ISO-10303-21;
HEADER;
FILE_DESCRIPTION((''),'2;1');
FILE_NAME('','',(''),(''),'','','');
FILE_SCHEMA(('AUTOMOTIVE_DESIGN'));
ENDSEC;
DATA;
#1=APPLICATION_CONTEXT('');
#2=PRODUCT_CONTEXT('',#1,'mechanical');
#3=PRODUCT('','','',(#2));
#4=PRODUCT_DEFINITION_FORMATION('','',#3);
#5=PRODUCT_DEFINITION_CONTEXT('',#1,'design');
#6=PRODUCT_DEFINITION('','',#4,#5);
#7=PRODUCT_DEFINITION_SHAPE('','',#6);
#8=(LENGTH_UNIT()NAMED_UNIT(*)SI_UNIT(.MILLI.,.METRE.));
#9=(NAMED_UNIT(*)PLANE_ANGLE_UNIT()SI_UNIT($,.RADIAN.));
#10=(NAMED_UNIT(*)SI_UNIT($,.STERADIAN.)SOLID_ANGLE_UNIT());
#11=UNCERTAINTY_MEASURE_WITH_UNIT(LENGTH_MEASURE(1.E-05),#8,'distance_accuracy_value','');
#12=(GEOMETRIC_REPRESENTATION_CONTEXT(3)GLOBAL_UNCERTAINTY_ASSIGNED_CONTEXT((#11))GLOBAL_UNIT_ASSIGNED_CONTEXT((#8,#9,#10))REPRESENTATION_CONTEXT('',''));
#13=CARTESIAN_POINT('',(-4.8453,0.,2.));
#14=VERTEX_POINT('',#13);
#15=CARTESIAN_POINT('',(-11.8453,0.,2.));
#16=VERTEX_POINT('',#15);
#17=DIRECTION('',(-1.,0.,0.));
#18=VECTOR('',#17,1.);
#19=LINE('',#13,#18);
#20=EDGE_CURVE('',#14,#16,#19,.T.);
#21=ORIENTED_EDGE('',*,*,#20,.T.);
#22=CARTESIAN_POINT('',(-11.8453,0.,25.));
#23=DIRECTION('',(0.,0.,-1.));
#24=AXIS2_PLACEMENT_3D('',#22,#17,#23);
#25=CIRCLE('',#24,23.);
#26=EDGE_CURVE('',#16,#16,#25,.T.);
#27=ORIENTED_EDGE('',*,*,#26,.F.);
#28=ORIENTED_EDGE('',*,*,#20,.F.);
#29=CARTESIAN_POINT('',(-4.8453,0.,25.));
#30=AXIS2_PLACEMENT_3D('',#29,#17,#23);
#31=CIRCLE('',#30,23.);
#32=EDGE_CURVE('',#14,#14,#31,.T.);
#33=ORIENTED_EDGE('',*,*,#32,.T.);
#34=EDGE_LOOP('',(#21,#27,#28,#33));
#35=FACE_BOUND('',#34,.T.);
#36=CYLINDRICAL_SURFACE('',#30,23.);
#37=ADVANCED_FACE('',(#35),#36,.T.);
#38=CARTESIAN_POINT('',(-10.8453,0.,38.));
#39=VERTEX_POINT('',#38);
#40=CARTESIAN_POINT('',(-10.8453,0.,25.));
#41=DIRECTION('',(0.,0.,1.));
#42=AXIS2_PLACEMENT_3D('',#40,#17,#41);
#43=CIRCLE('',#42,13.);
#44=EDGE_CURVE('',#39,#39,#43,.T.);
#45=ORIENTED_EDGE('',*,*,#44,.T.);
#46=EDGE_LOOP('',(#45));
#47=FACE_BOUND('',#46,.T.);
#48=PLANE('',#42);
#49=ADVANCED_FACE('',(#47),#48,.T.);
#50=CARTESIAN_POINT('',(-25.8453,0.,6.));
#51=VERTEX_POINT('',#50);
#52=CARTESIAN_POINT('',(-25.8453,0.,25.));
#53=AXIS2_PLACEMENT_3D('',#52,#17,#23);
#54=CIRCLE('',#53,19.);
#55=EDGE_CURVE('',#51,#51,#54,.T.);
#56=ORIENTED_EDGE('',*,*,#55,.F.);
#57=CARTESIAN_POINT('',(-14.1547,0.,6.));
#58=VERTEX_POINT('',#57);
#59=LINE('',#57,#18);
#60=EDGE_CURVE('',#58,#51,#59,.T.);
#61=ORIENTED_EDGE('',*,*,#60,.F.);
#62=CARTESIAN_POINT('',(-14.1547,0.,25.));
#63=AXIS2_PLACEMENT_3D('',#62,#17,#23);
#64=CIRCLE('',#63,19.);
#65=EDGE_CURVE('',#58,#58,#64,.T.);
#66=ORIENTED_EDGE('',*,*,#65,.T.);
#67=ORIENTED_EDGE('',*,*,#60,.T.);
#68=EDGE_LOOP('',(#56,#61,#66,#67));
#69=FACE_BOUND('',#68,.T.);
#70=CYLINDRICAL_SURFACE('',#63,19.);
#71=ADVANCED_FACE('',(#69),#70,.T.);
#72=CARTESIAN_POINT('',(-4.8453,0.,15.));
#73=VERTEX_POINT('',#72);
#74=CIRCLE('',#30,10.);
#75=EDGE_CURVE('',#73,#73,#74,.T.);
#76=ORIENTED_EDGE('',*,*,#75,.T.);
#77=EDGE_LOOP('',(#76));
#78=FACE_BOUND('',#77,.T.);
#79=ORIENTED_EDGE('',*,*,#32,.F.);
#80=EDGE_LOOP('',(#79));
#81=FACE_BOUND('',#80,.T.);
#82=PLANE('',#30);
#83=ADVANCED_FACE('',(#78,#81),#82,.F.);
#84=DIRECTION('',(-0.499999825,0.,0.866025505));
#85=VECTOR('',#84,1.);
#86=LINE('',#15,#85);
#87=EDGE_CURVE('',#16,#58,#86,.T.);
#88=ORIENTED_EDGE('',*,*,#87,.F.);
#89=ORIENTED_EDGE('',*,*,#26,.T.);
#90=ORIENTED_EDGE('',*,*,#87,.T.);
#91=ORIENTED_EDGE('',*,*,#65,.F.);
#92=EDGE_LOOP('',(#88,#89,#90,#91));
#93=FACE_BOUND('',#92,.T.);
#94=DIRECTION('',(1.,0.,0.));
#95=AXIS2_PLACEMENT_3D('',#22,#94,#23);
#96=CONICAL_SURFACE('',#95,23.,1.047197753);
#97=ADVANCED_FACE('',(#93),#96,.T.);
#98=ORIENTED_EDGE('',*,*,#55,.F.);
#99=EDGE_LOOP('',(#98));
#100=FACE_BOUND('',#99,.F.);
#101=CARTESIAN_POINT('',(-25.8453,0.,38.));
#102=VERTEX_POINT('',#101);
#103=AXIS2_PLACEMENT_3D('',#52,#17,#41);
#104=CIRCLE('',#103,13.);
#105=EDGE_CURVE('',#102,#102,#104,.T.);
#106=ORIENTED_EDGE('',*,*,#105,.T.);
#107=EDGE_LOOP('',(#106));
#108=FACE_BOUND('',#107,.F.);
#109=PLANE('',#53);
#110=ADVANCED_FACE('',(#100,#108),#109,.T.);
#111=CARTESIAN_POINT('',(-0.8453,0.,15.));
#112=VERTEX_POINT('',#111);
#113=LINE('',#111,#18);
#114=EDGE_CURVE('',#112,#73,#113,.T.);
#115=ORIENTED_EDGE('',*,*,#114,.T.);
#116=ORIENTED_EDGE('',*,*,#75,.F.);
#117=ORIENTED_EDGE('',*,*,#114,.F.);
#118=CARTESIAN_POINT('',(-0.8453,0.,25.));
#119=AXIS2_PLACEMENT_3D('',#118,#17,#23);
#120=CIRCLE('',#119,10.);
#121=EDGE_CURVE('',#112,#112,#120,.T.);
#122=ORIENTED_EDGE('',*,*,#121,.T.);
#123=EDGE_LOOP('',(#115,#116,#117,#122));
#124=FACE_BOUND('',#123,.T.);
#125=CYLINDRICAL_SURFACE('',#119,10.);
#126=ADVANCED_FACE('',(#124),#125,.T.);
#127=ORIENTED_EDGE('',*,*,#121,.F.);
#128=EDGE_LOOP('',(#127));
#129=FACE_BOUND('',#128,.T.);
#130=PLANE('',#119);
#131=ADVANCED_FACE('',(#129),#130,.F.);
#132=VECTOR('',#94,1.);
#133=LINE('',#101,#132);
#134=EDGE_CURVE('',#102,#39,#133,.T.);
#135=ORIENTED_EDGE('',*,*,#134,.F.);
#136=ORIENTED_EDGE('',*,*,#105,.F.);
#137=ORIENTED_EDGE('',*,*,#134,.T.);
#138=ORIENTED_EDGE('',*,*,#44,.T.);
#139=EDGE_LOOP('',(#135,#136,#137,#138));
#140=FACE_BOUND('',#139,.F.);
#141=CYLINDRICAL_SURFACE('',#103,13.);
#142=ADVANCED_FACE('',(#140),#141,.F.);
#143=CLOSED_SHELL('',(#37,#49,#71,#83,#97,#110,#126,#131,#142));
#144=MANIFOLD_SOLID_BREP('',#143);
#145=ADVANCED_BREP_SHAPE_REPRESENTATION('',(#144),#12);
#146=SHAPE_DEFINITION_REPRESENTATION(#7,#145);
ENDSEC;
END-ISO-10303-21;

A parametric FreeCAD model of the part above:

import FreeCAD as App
import Part
import Sketcher
from FreeCAD import Vector
Q = App.Units.Quantity

doc = App.newDocument("Part")
body = doc.addObject("PartDesign::Body", "Body")

# Sketch on XZ plane
sketch1 = body.newObject("Sketcher::SketchObject", "Sketch")
sketch1.AttachmentSupport = (doc.getObject("XZ_Plane"), [""])
sketch1.MapMode = "FlatFace"
sketch1.addGeometry([
    Part.LineSegment(Vector(-25.8453, 25, 0), Vector(-0.8453, 25, 0)),  # 0
    Part.LineSegment(Vector(-0.8453, 25, 0), Vector(-0.8453, 15, 0)),  # 1
    Part.LineSegment(Vector(-0.8453, 15, 0), Vector(-4.8453, 15, 0)),  # 2
    Part.LineSegment(Vector(-4.8453, 15, 0), Vector(-4.8453, 2, 0)),  # 3
    Part.LineSegment(Vector(-4.8453, 2, 0), Vector(-11.8453, 2, 0)),  # 4
    Part.LineSegment(Vector(-11.8453, 2, 0), Vector(-14.1547, 6, 0)),  # 5
    Part.LineSegment(Vector(-14.1547, 6, 0), Vector(-25.8453, 6, 0)),  # 6
    Part.LineSegment(Vector(-25.8453, 6, 0), Vector(-25.8453, 25, 0)),  # 7
], False)
sketch1.addGeometry(Part.LineSegment(Vector(-0.8453, 25, 0), Vector(-25.8453, 25, 0)), True)  # axis
sketch1.addConstraint([
    Sketcher.Constraint("Coincident", 0, 2, 1, 1),
    Sketcher.Constraint("Coincident", 1, 2, 2, 1),
    Sketcher.Constraint("Coincident", 2, 2, 3, 1),
    Sketcher.Constraint("Coincident", 3, 2, 4, 1),
    Sketcher.Constraint("Coincident", 4, 2, 5, 1),
    Sketcher.Constraint("Coincident", 5, 2, 6, 1),
    Sketcher.Constraint("Coincident", 6, 2, 7, 1),
    Sketcher.Constraint("Coincident", 7, 2, 0, 1),
    Sketcher.Constraint("Horizontal", 0),
    Sketcher.Constraint("Vertical", 1),
    Sketcher.Constraint("Horizontal", 2),
    Sketcher.Constraint("Vertical", 3),
    Sketcher.Constraint("Horizontal", 4),
    Sketcher.Constraint("Horizontal", 6),
    Sketcher.Constraint("Vertical", 7),
    Sketcher.Constraint("Horizontal", 8),
    Sketcher.Constraint("Coincident", 8, 1, 0, 2),
    Sketcher.Constraint("Vertical", 6, 2, 8, 2),
    Sketcher.Constraint("DistanceX", 0, 1, 0, 2, 25.0),
    Sketcher.Constraint("DistanceX", 2, 2, 2, 1, 4.0),
    Sketcher.Constraint("DistanceX", 4, 2, 4, 1, 7.0),
    Sketcher.Constraint("DistanceY", 1, 2, 1, 1, 10.0),
    Sketcher.Constraint("DistanceY", 3, 2, 3, 1, 13.0),
    Sketcher.Constraint("DistanceY", 7, 1, 7, 2, 19.0),
    Sketcher.Constraint("DistanceY", -1, 1, 0, 2, 25.0),
    Sketcher.Constraint("Angle", 5, Q("120 deg")),
    Sketcher.Constraint("DistanceX", 0, 2, -1, 1, 0.8453),
])
revolution = body.newObject("PartDesign::Revolution", "Revolution")
revolution.Profile = sketch1
revolution.ReferenceAxis = (sketch1, ["Axis0"])
revolution.Angle = 360

# Sketch on YZ plane
sketch2 = body.newObject("Sketcher::SketchObject", "Sketch001")
sketch2.AttachmentSupport = (doc.getObject("YZ_Plane"), [""])
sketch2.MapMode = "FlatFace"
sketch2.AttachmentOffset = App.Placement(Vector(0, 0, -25.8453), App.Rotation())
sketch2.addGeometry(Part.Circle(Vector(0, 25, 0), Vector(0, 0, 1), 13), False)
sketch2.addConstraint([
    Sketcher.Constraint("PointOnObject", 0, 3, -2),
    Sketcher.Constraint("Diameter", 0, 26.0),
    Sketcher.Constraint("DistanceY", -1, 1, 0, 3, 25.0),
])
pocket1 = body.newObject("PartDesign::Pocket", "Pocket")
pocket1.Profile = sketch2
pocket1.Length = 15
pocket1.Reversed = True

doc.recompute()
